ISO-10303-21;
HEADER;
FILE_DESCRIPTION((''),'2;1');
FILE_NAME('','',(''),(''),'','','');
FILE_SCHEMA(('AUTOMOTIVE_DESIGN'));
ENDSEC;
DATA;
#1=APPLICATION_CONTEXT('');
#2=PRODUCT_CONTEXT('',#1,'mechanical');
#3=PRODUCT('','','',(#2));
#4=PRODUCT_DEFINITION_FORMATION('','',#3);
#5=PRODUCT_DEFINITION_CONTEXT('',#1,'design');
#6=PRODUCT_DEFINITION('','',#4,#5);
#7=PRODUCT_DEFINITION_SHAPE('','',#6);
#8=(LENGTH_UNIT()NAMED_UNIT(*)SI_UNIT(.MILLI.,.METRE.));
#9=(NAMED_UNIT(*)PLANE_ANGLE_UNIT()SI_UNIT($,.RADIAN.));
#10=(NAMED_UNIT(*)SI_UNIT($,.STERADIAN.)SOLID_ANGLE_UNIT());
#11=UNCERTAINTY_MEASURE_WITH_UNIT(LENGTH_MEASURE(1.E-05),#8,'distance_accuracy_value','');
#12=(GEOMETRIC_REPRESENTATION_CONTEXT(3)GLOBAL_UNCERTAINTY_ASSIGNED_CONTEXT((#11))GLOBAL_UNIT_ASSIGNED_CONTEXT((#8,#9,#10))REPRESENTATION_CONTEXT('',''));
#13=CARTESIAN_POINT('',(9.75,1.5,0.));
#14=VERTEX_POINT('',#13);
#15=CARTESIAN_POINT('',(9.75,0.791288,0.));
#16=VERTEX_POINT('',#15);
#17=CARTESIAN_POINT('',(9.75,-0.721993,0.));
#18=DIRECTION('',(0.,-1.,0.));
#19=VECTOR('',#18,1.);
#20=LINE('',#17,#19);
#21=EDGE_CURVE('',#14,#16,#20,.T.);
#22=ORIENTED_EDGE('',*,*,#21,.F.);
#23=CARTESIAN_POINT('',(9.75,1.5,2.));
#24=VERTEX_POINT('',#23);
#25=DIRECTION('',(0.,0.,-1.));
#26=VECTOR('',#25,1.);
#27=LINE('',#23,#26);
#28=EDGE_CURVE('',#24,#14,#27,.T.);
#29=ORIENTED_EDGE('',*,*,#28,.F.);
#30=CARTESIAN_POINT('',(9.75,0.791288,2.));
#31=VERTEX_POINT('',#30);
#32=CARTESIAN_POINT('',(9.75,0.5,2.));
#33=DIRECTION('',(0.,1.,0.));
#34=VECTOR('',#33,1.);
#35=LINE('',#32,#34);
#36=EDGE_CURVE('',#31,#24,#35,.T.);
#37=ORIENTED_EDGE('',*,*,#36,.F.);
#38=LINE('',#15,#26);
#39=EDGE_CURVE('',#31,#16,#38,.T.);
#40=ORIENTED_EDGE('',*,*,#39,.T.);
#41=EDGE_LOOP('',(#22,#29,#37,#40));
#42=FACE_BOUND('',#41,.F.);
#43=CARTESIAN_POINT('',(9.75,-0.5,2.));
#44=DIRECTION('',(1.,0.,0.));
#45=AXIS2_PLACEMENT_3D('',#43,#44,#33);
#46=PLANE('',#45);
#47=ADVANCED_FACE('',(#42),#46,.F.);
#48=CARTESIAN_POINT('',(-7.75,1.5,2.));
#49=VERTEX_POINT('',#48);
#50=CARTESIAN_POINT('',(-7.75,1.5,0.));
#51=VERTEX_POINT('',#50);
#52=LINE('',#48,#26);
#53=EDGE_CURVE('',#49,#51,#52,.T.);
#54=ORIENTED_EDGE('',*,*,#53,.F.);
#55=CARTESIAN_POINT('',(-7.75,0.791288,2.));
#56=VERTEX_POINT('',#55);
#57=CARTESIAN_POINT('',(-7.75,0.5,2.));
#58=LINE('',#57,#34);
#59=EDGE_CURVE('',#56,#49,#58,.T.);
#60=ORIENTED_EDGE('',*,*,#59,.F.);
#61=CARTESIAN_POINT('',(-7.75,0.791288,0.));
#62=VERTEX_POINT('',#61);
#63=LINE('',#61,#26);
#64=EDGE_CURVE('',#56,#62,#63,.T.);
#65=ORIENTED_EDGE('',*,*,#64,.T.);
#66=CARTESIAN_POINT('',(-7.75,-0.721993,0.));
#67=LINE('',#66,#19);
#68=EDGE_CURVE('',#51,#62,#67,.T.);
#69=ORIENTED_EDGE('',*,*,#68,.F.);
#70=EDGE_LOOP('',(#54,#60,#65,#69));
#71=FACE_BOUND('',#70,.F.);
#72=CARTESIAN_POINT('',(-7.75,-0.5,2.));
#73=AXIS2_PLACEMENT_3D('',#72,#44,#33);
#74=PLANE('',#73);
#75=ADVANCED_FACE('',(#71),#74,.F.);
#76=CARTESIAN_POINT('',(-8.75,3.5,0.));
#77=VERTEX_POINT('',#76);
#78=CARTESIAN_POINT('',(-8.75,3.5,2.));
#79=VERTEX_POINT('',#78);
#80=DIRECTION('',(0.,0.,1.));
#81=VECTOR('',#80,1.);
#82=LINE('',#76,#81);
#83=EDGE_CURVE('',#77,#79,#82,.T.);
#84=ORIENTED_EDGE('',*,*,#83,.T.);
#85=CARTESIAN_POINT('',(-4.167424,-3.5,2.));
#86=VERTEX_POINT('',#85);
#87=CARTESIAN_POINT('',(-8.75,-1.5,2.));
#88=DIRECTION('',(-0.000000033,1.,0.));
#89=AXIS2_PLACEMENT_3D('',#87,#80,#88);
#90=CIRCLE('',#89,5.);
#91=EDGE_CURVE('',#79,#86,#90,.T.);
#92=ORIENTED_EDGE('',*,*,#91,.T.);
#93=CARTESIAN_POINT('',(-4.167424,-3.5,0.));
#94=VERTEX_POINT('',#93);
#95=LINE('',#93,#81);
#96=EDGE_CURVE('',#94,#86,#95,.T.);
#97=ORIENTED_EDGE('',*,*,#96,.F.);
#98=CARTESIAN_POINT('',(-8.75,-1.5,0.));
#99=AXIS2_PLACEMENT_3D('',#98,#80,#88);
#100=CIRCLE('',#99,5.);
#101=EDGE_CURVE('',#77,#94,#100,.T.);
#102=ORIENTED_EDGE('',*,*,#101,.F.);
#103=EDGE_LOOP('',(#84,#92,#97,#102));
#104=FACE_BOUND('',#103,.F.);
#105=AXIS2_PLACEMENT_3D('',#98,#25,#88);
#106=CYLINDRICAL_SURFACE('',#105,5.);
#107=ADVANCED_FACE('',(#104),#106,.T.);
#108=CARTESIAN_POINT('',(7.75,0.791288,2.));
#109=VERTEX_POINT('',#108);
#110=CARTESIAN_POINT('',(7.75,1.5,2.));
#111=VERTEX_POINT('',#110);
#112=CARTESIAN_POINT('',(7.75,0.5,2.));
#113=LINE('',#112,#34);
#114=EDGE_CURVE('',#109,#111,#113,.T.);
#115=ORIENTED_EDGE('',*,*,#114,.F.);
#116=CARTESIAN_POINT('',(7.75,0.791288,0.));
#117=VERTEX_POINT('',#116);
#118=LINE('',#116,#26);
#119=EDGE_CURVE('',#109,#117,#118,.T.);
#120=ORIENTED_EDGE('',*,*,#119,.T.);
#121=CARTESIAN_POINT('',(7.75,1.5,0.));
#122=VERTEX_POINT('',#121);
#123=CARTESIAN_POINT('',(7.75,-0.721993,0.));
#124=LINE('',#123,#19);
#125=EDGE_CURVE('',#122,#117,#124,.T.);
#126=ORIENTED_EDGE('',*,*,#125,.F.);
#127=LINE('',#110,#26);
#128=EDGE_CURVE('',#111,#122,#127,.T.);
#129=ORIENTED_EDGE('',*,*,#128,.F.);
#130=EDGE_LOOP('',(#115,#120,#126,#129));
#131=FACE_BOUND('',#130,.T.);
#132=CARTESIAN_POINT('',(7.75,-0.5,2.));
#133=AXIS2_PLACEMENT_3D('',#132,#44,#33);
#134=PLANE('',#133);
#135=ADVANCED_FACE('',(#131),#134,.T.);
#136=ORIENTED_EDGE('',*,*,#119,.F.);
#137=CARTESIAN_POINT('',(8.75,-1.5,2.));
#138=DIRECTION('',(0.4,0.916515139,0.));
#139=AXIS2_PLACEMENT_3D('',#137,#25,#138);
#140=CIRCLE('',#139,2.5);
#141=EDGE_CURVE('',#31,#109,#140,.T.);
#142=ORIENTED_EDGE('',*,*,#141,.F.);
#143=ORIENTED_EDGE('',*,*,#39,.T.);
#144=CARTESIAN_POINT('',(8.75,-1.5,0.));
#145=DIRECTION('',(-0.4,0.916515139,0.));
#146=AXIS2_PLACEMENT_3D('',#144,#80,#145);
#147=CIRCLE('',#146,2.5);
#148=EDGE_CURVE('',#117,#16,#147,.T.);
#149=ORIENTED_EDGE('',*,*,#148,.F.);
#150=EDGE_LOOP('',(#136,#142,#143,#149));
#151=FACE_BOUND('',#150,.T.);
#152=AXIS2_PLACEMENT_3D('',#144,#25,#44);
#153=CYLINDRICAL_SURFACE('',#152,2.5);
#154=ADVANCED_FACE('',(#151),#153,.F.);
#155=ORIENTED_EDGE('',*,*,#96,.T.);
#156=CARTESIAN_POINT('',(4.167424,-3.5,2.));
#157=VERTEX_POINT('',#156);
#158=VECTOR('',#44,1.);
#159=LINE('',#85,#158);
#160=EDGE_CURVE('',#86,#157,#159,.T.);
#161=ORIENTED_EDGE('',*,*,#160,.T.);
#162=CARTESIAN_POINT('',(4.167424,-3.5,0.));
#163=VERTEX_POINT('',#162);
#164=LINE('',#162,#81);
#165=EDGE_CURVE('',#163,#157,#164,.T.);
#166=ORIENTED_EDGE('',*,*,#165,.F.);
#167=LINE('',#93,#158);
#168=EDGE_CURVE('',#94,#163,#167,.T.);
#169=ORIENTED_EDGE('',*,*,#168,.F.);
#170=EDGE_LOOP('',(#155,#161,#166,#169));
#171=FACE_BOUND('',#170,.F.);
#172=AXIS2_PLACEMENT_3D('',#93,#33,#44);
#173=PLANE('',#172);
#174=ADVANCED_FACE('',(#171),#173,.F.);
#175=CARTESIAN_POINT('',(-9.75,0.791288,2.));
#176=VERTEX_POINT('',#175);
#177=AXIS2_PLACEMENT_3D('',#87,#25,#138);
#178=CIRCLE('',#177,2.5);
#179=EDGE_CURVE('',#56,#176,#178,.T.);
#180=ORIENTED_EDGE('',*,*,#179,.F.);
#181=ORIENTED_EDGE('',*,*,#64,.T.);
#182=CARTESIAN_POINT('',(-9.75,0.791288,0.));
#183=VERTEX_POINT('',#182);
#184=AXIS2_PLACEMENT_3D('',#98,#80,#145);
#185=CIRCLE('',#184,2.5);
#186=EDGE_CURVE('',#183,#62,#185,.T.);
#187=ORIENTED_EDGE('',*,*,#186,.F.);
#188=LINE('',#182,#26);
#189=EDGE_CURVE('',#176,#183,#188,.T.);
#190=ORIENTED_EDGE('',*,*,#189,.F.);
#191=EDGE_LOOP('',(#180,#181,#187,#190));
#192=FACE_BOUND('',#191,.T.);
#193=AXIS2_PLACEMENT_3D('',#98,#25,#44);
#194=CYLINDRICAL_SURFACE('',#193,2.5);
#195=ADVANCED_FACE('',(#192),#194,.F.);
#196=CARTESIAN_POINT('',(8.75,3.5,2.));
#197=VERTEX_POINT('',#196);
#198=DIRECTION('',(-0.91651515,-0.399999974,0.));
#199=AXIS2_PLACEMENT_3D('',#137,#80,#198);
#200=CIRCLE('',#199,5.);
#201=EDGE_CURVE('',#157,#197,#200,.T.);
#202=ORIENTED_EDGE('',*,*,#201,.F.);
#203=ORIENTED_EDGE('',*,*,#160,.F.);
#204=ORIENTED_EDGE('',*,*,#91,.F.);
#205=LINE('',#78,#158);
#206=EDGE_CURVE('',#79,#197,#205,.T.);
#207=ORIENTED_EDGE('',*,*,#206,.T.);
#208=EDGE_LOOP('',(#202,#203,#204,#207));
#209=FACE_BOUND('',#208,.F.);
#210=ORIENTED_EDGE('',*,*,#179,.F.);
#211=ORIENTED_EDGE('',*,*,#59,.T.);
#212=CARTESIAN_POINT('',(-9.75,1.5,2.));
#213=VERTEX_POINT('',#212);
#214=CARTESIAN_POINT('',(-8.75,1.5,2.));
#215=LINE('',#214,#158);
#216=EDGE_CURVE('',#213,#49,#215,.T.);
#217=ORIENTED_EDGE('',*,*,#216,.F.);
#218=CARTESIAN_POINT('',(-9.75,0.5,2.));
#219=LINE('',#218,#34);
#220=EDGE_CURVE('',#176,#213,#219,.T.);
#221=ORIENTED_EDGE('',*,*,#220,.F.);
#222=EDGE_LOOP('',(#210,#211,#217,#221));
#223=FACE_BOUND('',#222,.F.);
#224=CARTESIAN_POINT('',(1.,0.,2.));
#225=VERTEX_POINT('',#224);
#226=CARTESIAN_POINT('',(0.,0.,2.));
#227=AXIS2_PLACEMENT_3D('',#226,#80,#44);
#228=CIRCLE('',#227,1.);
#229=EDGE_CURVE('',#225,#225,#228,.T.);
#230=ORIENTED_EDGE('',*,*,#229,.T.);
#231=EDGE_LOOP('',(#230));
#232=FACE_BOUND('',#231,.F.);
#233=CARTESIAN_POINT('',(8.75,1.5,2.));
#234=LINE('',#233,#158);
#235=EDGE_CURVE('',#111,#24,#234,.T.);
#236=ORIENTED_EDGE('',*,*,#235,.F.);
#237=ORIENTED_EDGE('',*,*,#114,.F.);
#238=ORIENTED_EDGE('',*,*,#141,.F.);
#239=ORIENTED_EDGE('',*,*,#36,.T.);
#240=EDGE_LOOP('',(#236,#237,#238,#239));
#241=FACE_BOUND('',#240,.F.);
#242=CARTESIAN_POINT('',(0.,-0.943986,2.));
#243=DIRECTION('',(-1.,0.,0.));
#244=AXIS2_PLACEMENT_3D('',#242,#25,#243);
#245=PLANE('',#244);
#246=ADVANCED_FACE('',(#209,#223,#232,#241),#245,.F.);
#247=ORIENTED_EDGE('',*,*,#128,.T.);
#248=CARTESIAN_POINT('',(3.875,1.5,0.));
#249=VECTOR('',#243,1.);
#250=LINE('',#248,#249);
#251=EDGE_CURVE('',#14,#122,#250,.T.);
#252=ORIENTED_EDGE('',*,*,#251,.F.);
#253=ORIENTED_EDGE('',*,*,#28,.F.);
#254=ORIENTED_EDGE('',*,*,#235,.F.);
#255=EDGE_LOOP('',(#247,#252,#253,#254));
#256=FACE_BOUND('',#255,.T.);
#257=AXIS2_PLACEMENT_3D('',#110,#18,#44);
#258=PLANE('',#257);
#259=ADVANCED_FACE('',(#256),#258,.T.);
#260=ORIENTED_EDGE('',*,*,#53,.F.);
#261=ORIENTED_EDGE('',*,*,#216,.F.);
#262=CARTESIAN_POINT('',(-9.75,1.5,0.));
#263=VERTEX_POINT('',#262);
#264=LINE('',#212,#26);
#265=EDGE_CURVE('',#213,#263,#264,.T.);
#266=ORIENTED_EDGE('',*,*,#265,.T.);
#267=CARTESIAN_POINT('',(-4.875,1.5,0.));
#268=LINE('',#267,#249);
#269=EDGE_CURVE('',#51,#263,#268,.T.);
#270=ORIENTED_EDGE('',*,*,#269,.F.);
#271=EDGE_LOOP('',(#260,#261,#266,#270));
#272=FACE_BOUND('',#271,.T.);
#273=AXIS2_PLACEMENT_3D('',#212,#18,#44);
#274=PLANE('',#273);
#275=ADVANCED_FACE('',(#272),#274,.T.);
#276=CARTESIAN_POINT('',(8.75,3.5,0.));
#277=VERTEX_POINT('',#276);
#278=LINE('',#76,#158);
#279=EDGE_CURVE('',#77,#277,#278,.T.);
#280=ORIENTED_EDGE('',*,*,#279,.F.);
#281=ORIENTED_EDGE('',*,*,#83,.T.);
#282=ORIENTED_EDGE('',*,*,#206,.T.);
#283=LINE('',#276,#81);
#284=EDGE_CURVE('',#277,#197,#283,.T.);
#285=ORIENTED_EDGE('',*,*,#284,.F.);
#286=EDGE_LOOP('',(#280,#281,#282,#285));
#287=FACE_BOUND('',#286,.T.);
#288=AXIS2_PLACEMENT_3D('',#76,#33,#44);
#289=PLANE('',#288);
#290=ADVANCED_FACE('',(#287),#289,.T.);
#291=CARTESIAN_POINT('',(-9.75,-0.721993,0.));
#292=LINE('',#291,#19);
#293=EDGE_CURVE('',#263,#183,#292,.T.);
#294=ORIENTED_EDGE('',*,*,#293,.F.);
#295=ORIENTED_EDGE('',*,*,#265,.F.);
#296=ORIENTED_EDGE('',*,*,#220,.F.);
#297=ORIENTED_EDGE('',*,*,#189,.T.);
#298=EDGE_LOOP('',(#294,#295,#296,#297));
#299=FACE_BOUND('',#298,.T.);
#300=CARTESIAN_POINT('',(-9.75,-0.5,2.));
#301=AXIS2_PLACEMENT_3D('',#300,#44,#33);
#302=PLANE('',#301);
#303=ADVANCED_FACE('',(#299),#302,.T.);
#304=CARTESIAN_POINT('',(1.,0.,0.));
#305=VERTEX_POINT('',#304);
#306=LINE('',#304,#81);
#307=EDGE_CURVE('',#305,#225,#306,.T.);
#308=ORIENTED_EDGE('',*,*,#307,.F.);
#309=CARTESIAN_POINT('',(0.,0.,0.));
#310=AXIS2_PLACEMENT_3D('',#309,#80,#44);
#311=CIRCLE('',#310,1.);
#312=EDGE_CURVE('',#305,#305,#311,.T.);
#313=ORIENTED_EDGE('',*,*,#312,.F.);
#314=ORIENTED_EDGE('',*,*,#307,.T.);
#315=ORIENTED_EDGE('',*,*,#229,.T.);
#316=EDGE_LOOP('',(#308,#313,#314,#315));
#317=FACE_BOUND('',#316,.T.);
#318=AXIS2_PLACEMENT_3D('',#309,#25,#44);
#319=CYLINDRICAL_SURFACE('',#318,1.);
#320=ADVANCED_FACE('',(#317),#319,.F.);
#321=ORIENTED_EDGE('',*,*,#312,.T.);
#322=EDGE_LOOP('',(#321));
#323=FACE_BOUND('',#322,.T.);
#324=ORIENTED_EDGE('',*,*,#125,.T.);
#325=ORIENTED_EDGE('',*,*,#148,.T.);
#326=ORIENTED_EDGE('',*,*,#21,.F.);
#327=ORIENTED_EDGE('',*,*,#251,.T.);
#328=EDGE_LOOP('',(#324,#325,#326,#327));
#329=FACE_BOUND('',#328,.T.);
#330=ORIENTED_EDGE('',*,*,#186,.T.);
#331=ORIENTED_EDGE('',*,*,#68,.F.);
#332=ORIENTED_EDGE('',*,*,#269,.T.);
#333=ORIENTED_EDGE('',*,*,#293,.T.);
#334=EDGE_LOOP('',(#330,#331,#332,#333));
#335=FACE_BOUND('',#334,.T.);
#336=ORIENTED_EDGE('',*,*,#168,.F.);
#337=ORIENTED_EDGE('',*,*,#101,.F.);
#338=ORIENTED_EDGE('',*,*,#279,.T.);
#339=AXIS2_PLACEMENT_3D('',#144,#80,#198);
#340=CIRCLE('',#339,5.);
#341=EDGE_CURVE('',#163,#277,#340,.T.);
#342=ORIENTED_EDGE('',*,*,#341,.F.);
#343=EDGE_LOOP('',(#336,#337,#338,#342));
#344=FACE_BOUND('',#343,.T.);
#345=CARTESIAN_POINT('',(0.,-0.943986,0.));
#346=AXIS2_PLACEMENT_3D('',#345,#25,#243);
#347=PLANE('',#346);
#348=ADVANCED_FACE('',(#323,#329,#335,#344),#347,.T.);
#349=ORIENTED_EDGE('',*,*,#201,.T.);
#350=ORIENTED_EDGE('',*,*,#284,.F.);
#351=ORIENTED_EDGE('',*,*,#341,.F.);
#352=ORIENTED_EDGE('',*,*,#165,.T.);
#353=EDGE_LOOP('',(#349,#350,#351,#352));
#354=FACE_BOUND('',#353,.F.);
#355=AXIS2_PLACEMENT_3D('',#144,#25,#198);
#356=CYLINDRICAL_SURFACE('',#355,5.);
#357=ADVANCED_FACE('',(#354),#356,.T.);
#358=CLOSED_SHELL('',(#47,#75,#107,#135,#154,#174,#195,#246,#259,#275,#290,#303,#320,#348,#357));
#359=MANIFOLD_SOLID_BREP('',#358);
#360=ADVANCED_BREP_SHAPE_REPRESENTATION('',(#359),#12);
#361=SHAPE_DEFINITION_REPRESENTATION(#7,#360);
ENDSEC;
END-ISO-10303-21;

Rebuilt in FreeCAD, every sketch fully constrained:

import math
import FreeCAD as App
import Part
import Sketcher
from FreeCAD import Vector
Q = App.Units.Quantity

doc = App.newDocument("Part")
body = doc.addObject("PartDesign::Body", "Body")

# Sketch on XY plane
sketch1 = body.newObject("Sketcher::SketchObject", "Sketch")
sketch1.AttachmentSupport = (doc.getObject("XY_Plane"), [""])
sketch1.MapMode = "FlatFace"
sketch1.addGeometry(Part.LineSegment(Vector(8.8, 3.5, 0), Vector(-8.8, 3.5, 0)), False)
sketch1.addGeometry(Part.ArcOfCircle(Part.Circle(Vector(-8.7, -1.5, 0), Vector(0, 0, 1), 5), math.radians(90), math.radians(336)), False)
sketch1.addGeometry(Part.LineSegment(Vector(-4.2, -3.5, 0), Vector(4.2, -3.5, 0)), False)
sketch1.addGeometry(Part.ArcOfCircle(Part.Circle(Vector(8.7, -1.5, 0), Vector(0, 0, 1), 5), math.radians(-156), math.radians(90)), False)
sketch1.addGeometry(Part.Circle(Vector(8.8, -1.5, 0), Vector(0, 0, 1), 2.5), False)
sketch1.addGeometry(Part.Circle(Vector(-8.8, -1.5, 0), Vector(0, 0, 1), 2.5), False)
sketch1.addGeometry(Part.Circle(Vector(0, 0, 0), Vector(0, 0, 1), 1), False)
sketch1.addConstraint(Sketcher.Constraint("Tangent", 0, 2, 1, 1))
sketch1.addConstraint(Sketcher.Constraint("Coincident", 1, 2, 2, 1))
sketch1.addConstraint(Sketcher.Constraint("Coincident", 2, 2, 3, 1))
sketch1.addConstraint(Sketcher.Constraint("Tangent", 3, 2, 0, 1))
sketch1.addConstraint(Sketcher.Constraint("Horizontal", 0))
sketch1.addConstraint(Sketcher.Constraint("Horizontal", 2))
sketch1.addConstraint(Sketcher.Constraint("Coincident", 6, 3, -1, 1))
sketch1.addConstraint(Sketcher.Constraint("Coincident", 4, 3, 3, 3))
sketch1.addConstraint(Sketcher.Constraint("Coincident", 5, 3, 1, 3))
sketch1.addConstraint(Sketcher.Constraint("Equal", 1, 3))
sketch1.addConstraint(Sketcher.Constraint("Equal", 4, 5))
sketch1.addConstraint(Sketcher.Constraint("Diameter", 4, Q("5 mm")))
sketch1.addConstraint(Sketcher.Constraint("Diameter", 6, Q("2 mm")))
sketch1.addConstraint(Sketcher.Constraint("Radius", 1, Q("5 mm")))
sketch1.addConstraint(Sketcher.Constraint("DistanceX", 0, 2, 0, 1, Q("17.5 mm")))
sketch1.addConstraint(Sketcher.Constraint("DistanceY", 1, 2, 1, 3, Q("2 mm")))
sketch1.addConstraint(Sketcher.Constraint("DistanceY", 1, 3, -1, 1, Q("1.5 mm")))
sketch1.addConstraint(Sketcher.Constraint("DistanceX", 1, 3, -1, 1, Q("8.75 mm")))
pad1 = body.newObject("PartDesign::Pad", "Pad")
pad1.Profile = sketch1
pad1.Length = 2

# Sketch on XY plane
sketch2 = body.newObject("Sketcher::SketchObject", "Sketch001")
sketch2.AttachmentSupport = (doc.getObject("XY_Plane"), [""])
sketch2.MapMode = "FlatFace"
sketch2.AttachmentOffset = App.Placement(Vector(0, 0, 2), App.Rotation())
sketch2.addGeometry(Part.LineSegment(Vector(-9.8, 1.5, 0), Vector(-9.8, -0.5, 0)), False)
sketch2.addGeometry(Part.LineSegment(Vector(-9.8, -0.5, 0), Vector(-7.8, -0.5, 0)), False)
sketch2.addGeometry(Part.LineSegment(Vector(-7.8, -0.5, 0), Vector(-7.8, 1.5, 0)), False)
sketch2.addGeometry(Part.LineSegment(Vector(-7.8, 1.5, 0), Vector(-9.8, 1.5, 0)), False)
sketch2.addGeometry(Part.LineSegment(Vector(7.8, 1.5, 0), Vector(7.8, -0.5, 0)), False)
sketch2.addGeometry(Part.LineSegment(Vector(7.8, -0.5, 0), Vector(9.8, -0.5, 0)), False)
sketch2.addGeometry(Part.LineSegment(Vector(9.8, -0.5, 0), Vector(9.8, 1.5, 0)), False)
sketch2.addGeometry(Part.LineSegment(Vector(9.8, 1.5, 0), Vector(7.8, 1.5, 0)), False)
sketch2.addConstraint(Sketcher.Constraint("Coincident", 0, 2, 1, 1))
sketch2.addConstraint(Sketcher.Constraint("Coincident", 1, 2, 2, 1))
sketch2.addConstraint(Sketcher.Constraint("Coincident", 2, 2, 3, 1))
sketch2.addConstraint(Sketcher.Constraint("Coincident", 3, 2, 0, 1))
sketch2.addConstraint(Sketcher.Constraint("Coincident", 4, 2, 5, 1))
sketch2.addConstraint(Sketcher.Constraint("Coincident", 5, 2, 6, 1))
sketch2.addConstraint(Sketcher.Constraint("Coincident", 6, 2, 7, 1))
sketch2.addConstraint(Sketcher.Constraint("Coincident", 7, 2, 4, 1))
sketch2.addConstraint(Sketcher.Constraint("Vertical", 0))
sketch2.addConstraint(Sketcher.Constraint("Horizontal", 1))
sketch2.addConstraint(Sketcher.Constraint("Vertical", 2))
sketch2.addConstraint(Sketcher.Constraint("Horizontal", 3))
sketch2.addConstraint(Sketcher.Constraint("Vertical", 4))
sketch2.addConstraint(Sketcher.Constraint("Horizontal", 5))
sketch2.addConstraint(Sketcher.Constraint("Vertical", 6))
sketch2.addConstraint(Sketcher.Constraint("Horizontal", 7))
sketch2.addConstraint(Sketcher.Constraint("Symmetric", 1, 2, 4, 2, -2))
sketch2.addConstraint(Sketcher.Constraint("Symmetric", 3, 2, 6, 2, -2))
sketch2.addConstraint(Sketcher.Constraint("Equal", 7, 0))
sketch2.addConstraint(Sketcher.Constraint("DistanceX", 1, 1, 1, 2, Q("2 mm")))
sketch2.addConstraint(Sketcher.Constraint("DistanceY", 0, 2, -1, 1, Q("0.5 mm")))
sketch2.addConstraint(Sketcher.Constraint("DistanceX", 1, 2, 4, 2, Q("15.5 mm")))
pocket1 = body.newObject("PartDesign::Pocket", "Pocket")
pocket1.Profile = sketch2
pocket1.Type = "ThroughAll"

doc.recompute()
